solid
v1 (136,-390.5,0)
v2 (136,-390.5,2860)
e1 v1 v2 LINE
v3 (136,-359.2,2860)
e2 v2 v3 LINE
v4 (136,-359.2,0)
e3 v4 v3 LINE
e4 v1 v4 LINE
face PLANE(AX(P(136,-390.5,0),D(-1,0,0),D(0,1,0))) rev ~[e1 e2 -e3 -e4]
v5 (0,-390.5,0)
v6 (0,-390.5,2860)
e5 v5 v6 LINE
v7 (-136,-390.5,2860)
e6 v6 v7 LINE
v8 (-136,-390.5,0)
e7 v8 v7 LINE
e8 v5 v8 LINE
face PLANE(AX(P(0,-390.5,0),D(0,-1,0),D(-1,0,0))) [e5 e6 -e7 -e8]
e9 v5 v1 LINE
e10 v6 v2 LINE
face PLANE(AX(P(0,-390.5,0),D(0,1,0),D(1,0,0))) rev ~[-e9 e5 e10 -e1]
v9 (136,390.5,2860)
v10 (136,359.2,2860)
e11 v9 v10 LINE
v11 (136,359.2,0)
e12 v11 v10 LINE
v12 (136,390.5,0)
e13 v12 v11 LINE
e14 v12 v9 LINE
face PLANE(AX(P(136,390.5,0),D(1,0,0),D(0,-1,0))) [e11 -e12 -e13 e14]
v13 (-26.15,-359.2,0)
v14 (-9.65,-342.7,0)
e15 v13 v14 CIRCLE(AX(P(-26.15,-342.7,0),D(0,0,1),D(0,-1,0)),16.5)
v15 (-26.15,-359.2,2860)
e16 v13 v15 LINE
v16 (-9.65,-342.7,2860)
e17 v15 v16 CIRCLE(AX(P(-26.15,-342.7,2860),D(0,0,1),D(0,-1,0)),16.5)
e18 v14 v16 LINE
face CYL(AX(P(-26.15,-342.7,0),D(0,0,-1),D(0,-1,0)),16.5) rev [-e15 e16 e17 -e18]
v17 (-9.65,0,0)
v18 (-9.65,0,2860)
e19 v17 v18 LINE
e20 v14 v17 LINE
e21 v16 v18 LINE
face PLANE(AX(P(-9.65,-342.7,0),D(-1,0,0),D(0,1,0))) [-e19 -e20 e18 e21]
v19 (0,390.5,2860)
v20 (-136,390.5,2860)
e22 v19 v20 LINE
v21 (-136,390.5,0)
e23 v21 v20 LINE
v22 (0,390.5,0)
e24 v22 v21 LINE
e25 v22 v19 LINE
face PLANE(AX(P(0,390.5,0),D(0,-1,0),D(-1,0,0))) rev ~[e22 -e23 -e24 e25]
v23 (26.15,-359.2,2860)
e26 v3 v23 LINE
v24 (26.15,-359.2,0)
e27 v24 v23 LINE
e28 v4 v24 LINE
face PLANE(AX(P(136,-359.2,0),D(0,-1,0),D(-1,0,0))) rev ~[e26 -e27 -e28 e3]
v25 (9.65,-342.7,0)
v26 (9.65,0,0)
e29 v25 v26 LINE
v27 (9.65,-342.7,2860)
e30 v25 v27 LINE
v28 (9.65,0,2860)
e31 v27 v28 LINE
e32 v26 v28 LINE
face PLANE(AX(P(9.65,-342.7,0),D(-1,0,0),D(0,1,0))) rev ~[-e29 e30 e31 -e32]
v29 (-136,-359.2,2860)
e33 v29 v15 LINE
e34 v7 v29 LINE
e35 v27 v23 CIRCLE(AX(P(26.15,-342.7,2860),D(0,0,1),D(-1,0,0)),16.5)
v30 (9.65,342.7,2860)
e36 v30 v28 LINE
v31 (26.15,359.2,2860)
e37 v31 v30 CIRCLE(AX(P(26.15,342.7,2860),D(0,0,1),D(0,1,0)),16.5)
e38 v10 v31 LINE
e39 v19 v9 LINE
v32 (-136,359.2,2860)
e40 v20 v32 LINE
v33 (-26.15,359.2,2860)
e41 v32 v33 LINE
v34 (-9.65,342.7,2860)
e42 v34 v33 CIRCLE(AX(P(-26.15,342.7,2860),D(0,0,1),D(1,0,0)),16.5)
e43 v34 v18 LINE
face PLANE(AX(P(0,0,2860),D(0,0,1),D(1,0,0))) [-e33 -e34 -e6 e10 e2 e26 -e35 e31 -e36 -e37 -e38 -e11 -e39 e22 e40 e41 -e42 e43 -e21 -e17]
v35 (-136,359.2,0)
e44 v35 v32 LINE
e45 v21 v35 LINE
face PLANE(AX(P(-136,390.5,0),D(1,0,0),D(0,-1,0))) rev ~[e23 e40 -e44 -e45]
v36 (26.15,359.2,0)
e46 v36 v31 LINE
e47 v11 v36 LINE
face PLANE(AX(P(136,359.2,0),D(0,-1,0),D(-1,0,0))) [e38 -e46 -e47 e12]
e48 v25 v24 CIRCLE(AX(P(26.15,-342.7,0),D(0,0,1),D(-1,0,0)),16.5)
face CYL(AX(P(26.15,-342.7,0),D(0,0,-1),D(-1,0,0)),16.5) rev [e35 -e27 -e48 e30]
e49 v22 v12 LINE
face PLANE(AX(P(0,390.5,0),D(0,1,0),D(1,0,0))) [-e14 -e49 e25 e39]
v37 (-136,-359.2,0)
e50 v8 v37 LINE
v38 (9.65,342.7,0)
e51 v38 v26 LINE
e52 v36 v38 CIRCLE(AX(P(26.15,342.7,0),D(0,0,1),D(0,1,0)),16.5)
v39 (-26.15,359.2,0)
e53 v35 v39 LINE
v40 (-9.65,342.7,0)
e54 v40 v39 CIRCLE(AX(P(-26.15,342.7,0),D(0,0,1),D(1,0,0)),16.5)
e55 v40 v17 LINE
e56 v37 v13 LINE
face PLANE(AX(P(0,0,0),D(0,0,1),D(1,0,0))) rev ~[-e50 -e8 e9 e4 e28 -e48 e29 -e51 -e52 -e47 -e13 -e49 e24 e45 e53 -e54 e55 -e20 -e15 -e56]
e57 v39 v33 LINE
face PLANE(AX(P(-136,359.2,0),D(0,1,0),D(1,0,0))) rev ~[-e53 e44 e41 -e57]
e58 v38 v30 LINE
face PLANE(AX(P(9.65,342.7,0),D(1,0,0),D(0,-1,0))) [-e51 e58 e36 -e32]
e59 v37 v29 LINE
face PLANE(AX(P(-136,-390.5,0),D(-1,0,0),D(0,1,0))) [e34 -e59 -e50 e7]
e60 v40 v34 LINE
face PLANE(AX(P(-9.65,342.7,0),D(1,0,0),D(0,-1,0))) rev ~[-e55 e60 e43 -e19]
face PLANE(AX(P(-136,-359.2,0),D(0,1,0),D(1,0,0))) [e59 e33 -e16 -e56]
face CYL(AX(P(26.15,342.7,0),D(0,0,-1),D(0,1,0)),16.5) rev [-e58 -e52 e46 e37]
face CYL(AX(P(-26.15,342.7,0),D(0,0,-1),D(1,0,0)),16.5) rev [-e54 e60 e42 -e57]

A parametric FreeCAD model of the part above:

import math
import FreeCAD as App
import Part
import Sketcher

V = App.Vector
Q = App.Units.Quantity

doc = App.newDocument("Part")
body = doc.addObject("PartDesign::Body", "Body")

# Sketch on XY plane
sketch1 = doc.addObject("Sketcher::SketchObject", "Sketch")
body.addObject(sketch1)
sketch1.AttachmentSupport = (doc.XY_Plane, [""])
sketch1.MapMode = "FlatFace"
sketch1.addGeometry([
    Part.LineSegment(V(-136, -359, 0), V(-136, -390, 0)),  # 0
    Part.LineSegment(V(-136, -390, 0), V(136, -390, 0)),  # 1
    Part.LineSegment(V(136, -390, 0), V(136, -359, 0)),  # 2
    Part.LineSegment(V(136, -359, 0), V(26, -359, 0)),  # 3
    Part.ArcOfCircle(Part.Circle(V(26, -343, 0), V(0, 0, 1), 16), math.radians(180), math.radians(270)),  # 4
    Part.LineSegment(V(10, -343, 0), V(10, 343, 0)),  # 5
    Part.ArcOfCircle(Part.Circle(V(26, 343, 0), V(0, 0, 1), 16), math.radians(90), math.radians(180)),  # 6
    Part.LineSegment(V(26, 359, 0), V(136, 359, 0)),  # 7
    Part.LineSegment(V(136, 359, 0), V(136, 390, 0)),  # 8
    Part.LineSegment(V(136, 390, 0), V(-136, 390, 0)),  # 9
    Part.LineSegment(V(-136, 390, 0), V(-136, 359, 0)),  # 10
    Part.LineSegment(V(-136, 359, 0), V(-26, 359, 0)),  # 11
    Part.ArcOfCircle(Part.Circle(V(-26, 343, 0), V(0, 0, 1), 16), math.radians(0), math.radians(90)),  # 12
    Part.LineSegment(V(-10, 343, 0), V(-10, -343, 0)),  # 13
    Part.ArcOfCircle(Part.Circle(V(-26, -343, 0), V(0, 0, 1), 16), math.radians(-90), math.radians(0)),  # 14
    Part.LineSegment(V(-26, -359, 0), V(-136, -359, 0)),  # 15
], False)
sketch1.addConstraint([
    Sketcher.Constraint("Coincident", 0, 2, 1, 1),
    Sketcher.Constraint("Coincident", 1, 2, 2, 1),
    Sketcher.Constraint("Coincident", 2, 2, 3, 1),
    Sketcher.Constraint("Tangent", 3, 2, 4, 2),
    Sketcher.Constraint("Tangent", 4, 1, 5, 1),
    Sketcher.Constraint("Tangent", 5, 2, 6, 2),
    Sketcher.Constraint("Tangent", 6, 1, 7, 1),
    Sketcher.Constraint("Coincident", 7, 2, 8, 1),
    Sketcher.Constraint("Coincident", 8, 2, 9, 1),
    Sketcher.Constraint("Coincident", 9, 2, 10, 1),
    Sketcher.Constraint("Coincident", 10, 2, 11, 1),
    Sketcher.Constraint("Tangent", 11, 2, 12, 2),
    Sketcher.Constraint("Tangent", 12, 1, 13, 1),
    Sketcher.Constraint("Tangent", 13, 2, 14, 2),
    Sketcher.Constraint("Tangent", 14, 1, 15, 1),
    Sketcher.Constraint("Coincident", 15, 2, 0, 1),
    Sketcher.Constraint("Vertical", 0),
    Sketcher.Constraint("Horizontal", 1),
    Sketcher.Constraint("Vertical", 2),
    Sketcher.Constraint("Horizontal", 3),
    Sketcher.Constraint("Vertical", 5),
    Sketcher.Constraint("Horizontal", 7),
    Sketcher.Constraint("Vertical", 8),
    Sketcher.Constraint("Horizontal", 9),
    Sketcher.Constraint("Vertical", 10),
    Sketcher.Constraint("Horizontal", 11),
    Sketcher.Constraint("Vertical", 13),
    Sketcher.Constraint("Horizontal", 15),
    Sketcher.Constraint("Equal", 4, 6),
    Sketcher.Constraint("Equal", 6, 12),
    Sketcher.Constraint("Equal", 12, 14),
    Sketcher.Constraint("Symmetric", 4, 3, 12, 3, -1, 1),
    Sketcher.Constraint("Symmetric", 0, 2, 8, 2, -1, 1),
    Sketcher.Constraint("Symmetric", 7, 2, 10, 2, -2),
    Sketcher.Constraint("Symmetric", 2, 2, 15, 2, -2),
    Sketcher.Constraint("Radius", 4, Q("16.5 mm")),
    Sketcher.Constraint("DistanceY", 0, 2, 0, 1, Q("31.3 mm")),
    Sketcher.Constraint("DistanceX", 0, 2, -1, 1, Q("136 mm")),
    Sketcher.Constraint("DistanceY", 0, 2, -1, 1, Q("390.5 mm")),
    Sketcher.Constraint("DistanceX", -1, 1, 4, 1, Q("9.65 mm")),
])
pad1 = doc.addObject("PartDesign::Pad", "Pad")
body.addObject(pad1)
pad1.Profile = sketch1
pad1.Length = 2860

doc.recompute()
